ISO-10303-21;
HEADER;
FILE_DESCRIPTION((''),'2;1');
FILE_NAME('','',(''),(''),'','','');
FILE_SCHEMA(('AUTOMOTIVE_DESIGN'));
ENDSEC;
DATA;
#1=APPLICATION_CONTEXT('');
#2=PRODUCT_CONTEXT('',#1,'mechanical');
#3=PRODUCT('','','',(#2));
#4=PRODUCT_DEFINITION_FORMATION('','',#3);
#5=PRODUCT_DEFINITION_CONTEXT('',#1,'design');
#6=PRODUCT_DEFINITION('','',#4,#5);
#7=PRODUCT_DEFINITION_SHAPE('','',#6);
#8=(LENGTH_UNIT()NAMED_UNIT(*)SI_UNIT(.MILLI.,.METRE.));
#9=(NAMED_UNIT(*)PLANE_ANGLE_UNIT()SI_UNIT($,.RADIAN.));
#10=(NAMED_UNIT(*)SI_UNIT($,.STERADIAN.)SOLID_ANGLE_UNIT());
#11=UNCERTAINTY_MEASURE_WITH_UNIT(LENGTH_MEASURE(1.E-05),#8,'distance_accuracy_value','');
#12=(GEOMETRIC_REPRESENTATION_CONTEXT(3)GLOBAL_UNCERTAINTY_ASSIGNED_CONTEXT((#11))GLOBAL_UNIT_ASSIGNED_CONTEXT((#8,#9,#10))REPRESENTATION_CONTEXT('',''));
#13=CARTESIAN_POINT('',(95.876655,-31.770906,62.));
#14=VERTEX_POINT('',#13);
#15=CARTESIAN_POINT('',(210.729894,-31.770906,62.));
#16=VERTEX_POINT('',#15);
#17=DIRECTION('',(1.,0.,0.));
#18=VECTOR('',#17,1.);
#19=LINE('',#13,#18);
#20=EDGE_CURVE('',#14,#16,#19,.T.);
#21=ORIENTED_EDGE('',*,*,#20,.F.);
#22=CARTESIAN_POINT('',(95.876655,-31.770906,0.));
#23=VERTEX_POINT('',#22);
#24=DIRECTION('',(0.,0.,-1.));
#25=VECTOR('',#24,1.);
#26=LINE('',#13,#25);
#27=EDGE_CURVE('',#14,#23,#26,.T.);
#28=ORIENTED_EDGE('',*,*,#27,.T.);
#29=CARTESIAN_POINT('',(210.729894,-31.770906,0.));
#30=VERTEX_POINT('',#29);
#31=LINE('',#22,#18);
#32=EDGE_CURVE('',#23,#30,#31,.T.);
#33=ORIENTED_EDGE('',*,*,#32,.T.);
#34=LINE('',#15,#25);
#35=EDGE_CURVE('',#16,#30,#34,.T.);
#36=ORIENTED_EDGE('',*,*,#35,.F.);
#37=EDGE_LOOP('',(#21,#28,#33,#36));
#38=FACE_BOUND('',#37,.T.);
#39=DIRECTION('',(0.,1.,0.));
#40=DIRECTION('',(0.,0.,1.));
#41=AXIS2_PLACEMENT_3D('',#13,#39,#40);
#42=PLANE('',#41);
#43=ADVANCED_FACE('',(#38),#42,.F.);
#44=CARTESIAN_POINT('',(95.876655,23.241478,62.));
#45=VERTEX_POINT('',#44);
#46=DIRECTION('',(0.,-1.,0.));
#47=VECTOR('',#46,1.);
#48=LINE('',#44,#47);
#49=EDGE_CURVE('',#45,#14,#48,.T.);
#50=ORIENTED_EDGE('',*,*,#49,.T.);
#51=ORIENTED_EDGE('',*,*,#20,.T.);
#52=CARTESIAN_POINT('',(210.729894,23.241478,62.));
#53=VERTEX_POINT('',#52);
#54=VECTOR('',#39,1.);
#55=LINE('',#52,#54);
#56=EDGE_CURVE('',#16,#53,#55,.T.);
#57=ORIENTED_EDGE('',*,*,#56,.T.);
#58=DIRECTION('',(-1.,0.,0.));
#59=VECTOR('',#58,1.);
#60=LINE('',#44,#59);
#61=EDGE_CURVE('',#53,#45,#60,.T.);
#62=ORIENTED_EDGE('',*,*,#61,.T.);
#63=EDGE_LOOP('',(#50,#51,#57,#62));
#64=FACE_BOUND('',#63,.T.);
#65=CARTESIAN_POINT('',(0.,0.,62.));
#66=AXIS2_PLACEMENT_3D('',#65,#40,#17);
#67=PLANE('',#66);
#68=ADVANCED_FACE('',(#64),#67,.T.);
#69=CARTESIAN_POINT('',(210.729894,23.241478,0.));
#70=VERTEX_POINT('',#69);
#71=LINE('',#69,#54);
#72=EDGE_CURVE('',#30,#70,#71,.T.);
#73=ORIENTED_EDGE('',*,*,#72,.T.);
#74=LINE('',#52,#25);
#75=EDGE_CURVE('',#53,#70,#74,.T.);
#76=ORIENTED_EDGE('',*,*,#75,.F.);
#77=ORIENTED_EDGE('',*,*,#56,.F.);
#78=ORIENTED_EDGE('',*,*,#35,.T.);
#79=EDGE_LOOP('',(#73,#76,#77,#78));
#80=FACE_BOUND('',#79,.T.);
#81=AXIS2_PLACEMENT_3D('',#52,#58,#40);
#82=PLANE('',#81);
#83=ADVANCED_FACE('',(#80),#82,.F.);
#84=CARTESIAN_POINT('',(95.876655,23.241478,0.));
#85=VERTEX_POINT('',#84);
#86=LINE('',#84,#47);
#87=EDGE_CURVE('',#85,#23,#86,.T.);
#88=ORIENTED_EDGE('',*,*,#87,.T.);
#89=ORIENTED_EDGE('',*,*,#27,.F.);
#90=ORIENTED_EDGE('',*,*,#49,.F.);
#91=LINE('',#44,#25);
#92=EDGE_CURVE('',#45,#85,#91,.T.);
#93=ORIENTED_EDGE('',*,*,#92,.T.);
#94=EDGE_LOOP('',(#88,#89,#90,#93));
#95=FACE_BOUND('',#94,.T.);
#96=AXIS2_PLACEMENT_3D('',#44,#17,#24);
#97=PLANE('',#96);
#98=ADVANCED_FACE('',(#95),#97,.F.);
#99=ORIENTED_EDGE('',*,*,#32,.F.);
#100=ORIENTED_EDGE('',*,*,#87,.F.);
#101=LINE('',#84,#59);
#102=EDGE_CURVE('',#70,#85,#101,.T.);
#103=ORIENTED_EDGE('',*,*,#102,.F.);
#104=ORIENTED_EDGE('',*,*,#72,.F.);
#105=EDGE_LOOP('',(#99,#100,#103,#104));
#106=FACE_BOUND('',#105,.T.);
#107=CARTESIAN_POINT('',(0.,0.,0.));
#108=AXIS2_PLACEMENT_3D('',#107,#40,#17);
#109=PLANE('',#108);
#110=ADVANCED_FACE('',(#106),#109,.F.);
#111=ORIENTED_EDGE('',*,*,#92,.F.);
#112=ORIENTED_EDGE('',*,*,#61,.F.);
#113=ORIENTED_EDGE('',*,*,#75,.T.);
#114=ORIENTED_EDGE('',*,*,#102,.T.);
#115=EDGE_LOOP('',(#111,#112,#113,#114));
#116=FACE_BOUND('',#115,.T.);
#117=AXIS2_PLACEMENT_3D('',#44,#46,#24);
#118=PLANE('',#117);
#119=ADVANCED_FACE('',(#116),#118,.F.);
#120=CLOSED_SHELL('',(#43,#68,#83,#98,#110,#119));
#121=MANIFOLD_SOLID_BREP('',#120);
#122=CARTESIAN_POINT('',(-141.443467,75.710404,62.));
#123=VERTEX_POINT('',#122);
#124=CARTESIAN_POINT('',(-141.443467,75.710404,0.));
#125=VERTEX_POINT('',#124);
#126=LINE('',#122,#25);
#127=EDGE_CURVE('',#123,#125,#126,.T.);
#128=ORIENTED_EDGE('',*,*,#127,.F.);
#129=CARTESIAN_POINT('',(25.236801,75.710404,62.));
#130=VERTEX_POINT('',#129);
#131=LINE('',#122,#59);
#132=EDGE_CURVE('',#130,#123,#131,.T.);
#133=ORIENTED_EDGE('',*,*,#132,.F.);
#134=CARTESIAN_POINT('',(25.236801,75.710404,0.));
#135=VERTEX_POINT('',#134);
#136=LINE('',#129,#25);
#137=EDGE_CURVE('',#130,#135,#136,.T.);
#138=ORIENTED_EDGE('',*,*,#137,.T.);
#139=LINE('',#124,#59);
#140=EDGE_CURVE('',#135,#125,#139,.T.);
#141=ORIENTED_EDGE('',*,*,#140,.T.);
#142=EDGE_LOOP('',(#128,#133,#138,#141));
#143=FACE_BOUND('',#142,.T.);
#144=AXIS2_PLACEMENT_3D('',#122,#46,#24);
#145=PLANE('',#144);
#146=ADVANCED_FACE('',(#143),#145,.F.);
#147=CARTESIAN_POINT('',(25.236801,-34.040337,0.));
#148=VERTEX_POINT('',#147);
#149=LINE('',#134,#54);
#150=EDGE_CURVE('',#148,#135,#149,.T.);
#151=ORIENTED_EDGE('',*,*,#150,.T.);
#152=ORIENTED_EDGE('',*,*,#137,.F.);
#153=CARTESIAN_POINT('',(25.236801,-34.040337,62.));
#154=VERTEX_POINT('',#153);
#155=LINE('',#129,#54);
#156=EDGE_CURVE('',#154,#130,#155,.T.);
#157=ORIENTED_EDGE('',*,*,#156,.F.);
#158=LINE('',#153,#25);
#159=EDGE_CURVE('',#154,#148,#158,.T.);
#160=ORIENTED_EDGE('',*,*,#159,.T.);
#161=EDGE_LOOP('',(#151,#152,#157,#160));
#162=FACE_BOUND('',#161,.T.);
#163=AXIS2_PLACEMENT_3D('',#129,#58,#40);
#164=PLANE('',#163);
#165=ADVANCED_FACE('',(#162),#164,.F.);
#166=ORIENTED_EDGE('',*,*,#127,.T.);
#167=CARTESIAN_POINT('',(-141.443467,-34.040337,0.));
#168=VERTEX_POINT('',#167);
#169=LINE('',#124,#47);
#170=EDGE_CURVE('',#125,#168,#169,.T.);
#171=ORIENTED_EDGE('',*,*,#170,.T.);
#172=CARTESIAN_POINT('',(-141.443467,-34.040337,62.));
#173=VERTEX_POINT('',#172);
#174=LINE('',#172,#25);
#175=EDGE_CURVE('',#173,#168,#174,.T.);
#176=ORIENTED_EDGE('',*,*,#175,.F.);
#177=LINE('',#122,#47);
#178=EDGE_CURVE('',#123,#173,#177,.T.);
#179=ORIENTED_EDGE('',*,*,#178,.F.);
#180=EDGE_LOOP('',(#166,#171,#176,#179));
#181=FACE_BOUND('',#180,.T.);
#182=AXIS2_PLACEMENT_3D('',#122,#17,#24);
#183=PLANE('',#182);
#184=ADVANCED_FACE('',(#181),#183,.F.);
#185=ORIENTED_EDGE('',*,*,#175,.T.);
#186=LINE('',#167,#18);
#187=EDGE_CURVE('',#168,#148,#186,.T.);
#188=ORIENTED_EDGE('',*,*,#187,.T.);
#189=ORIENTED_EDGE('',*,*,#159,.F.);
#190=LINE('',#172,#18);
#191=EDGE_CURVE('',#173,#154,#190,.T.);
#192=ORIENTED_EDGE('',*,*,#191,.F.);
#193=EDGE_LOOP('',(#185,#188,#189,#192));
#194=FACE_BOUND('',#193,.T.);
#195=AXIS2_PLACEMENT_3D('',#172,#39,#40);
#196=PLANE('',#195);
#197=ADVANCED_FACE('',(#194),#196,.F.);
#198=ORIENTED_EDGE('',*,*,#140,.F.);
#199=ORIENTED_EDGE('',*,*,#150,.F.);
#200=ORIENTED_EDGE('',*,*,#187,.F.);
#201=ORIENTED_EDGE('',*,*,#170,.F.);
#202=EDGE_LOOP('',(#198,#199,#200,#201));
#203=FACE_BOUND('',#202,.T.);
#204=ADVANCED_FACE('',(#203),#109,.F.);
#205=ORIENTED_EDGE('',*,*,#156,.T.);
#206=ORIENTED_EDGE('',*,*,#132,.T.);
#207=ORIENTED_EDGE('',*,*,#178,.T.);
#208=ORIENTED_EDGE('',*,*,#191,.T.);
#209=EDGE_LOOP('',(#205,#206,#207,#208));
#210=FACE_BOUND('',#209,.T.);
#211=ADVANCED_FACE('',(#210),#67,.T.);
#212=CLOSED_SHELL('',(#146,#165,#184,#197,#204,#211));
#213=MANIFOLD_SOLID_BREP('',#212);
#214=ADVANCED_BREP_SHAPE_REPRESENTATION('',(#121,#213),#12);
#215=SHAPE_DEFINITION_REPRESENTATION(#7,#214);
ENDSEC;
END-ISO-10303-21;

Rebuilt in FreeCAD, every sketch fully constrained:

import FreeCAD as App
import Part
import Sketcher

doc = App.newDocument("Part")
params = doc.addObject("Spreadsheet::Sheet", "Params")
for row, (alias, value) in enumerate([
    ("pad1_length", "62 mm"),
    ("pad2_length", "62 mm"),
], start=1):
    params.set(f"A{row}", alias)
    params.set(f"B{row}", "=" + value)
    params.setAlias(f"B{row}", alias)

body = doc.addObject("PartDesign::Body", "Body")

sketch1 = doc.addObject("Sketcher::SketchObject", "Sketch")
body.addObject(sketch1)
sketch1.AttachmentSupport = (doc.XY_Plane, [""])
sketch1.MapMode = "FlatFace"
sketch1.addGeometry([
    Part.LineSegment(App.Vector(-141.443467, 75.710404, 0), App.Vector(-141.443467, -34.040337, 0)),
    Part.LineSegment(App.Vector(-141.443467, -34.040337, 0), App.Vector(25.236801, -34.040337, 0)),
    Part.LineSegment(App.Vector(25.236801, -34.040337, 0), App.Vector(25.236801, 75.710404, 0)),
    Part.LineSegment(App.Vector(25.236801, 75.710404, 0), App.Vector(-141.443467, 75.710404, 0)),
], False)
sketch1.addConstraint([
    Sketcher.Constraint("Coincident", 0, 2, 1, 1),
    Sketcher.Constraint("Coincident", 1, 2, 2, 1),
    Sketcher.Constraint("Coincident", 2, 2, 3, 1),
    Sketcher.Constraint("Coincident", 3, 2, 0, 1),
    Sketcher.Constraint("Vertical", 0),
    Sketcher.Constraint("Horizontal", 1),
    Sketcher.Constraint("Vertical", 2),
    Sketcher.Constraint("Horizontal", 3),
    Sketcher.Constraint("DistanceX", 1, 1, 1, 2, 166.680269),
    Sketcher.Constraint("DistanceY", 0, 2, 0, 1, 109.75074),
    Sketcher.Constraint("DistanceX", -1, 1, 1, 2, 25.236801),
    Sketcher.Constraint("DistanceY", 0, 2, -1, 1, 34.040337),
])
pad1 = doc.addObject("PartDesign::Pad", "Pad")
body.addObject(pad1)
pad1.Profile = sketch1
pad1.setExpression("Length", "Params.pad1_length")
body2 = doc.addObject("PartDesign::Body", "Body001")

sketch2 = doc.addObject("Sketcher::SketchObject", "Sketch001")
body2.addObject(sketch2)
sketch2.AttachmentSupport = (doc.getObject("XY_Plane001"), [""])
sketch2.MapMode = "FlatFace"
sketch2.addGeometry([
    Part.LineSegment(App.Vector(95.876655, 23.241478, 0), App.Vector(95.876655, -31.770906, 0)),
    Part.LineSegment(App.Vector(95.876655, -31.770906, 0), App.Vector(210.729894, -31.770906, 0)),
    Part.LineSegment(App.Vector(210.729894, -31.770906, 0), App.Vector(210.729894, 23.241478, 0)),
    Part.LineSegment(App.Vector(210.729894, 23.241478, 0), App.Vector(95.876655, 23.241478, 0)),
], False)
sketch2.addConstraint([
    Sketcher.Constraint("Coincident", 0, 2, 1, 1),
    Sketcher.Constraint("Coincident", 1, 2, 2, 1),
    Sketcher.Constraint("Coincident", 2, 2, 3, 1),
    Sketcher.Constraint("Coincident", 3, 2, 0, 1),
    Sketcher.Constraint("Vertical", 0),
    Sketcher.Constraint("Horizontal", 1),
    Sketcher.Constraint("Vertical", 2),
    Sketcher.Constraint("Horizontal", 3),
    Sketcher.Constraint("DistanceX", 1, 1, 1, 2, 114.853239),
    Sketcher.Constraint("DistanceY", 0, 2, 0, 1, 55.012384),
    Sketcher.Constraint("DistanceY", -1, 1, 2, 2, 23.241478),
    Sketcher.Constraint("DistanceX", -1, 1, 0, 2, 95.876655),
])
pad2 = doc.addObject("PartDesign::Pad", "Pad001")
body2.addObject(pad2)
pad2.Profile = sketch2
pad2.setExpression("Length", "Params.pad2_length")

doc.recompute()
